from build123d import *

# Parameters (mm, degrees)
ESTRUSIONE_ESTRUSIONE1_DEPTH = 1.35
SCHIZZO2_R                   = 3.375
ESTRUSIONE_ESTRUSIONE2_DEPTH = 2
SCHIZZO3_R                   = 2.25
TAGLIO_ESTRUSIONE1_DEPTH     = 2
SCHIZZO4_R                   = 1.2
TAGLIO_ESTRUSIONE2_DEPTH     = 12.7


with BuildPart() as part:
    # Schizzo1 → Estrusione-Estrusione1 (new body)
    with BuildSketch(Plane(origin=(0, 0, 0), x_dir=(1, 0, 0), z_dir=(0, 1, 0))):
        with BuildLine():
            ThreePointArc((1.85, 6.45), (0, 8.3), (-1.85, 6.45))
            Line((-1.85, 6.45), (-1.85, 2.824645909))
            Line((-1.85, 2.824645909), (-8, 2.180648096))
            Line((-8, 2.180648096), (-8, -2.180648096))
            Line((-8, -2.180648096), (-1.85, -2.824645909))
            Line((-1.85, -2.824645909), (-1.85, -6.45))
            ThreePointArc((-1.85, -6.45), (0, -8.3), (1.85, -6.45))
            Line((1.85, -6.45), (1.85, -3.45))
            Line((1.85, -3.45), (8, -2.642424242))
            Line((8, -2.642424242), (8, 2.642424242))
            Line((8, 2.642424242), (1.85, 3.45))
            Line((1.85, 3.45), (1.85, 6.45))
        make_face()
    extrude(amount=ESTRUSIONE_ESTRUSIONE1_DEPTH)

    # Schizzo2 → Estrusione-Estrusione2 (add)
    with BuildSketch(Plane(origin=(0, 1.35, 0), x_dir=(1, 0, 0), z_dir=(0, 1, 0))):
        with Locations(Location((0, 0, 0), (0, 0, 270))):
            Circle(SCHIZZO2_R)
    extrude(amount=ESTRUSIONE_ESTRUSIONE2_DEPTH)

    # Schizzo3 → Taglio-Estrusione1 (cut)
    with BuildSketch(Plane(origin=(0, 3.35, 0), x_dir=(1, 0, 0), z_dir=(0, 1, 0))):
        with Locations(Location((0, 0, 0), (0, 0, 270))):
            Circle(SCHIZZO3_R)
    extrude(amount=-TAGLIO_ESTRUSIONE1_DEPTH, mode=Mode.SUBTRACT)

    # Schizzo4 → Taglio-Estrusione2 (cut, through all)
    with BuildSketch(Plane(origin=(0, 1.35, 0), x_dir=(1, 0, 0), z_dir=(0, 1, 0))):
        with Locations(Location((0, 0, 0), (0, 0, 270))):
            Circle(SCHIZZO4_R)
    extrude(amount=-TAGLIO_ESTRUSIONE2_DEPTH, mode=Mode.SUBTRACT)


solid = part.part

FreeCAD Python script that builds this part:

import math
import FreeCAD as App
import Part
import Sketcher
from FreeCAD import Vector
Q = App.Units.Quantity

doc = App.newDocument("Part")
body = doc.addObject("PartDesign::Body", "Body")

sketch1 = doc.addObject("Sketcher::SketchObject", "Sketch")
body.addObject(sketch1)
sketch1.AttachmentSupport = (doc.XZ_Plane, [""])
sketch1.MapMode = "FlatFace"
sketch1.addGeometry([
    Part.ArcOfCircle(Part.Circle(Vector(0, -6.5, 0), Vector(0, 0, 1), 1.9), math.radians(180), math.radians(360)),
    Part.LineSegment(Vector(-1.9, -6.5, 0), Vector(-1.9, -2.8, 0)),
    Part.LineSegment(Vector(-1.9, -2.8, 0), Vector(-8, -2.2, 0)),
    Part.LineSegment(Vector(-8, -2.2, 0), Vector(-8, 2.2, 0)),
    Part.LineSegment(Vector(-8, 2.2, 0), Vector(-1.9, 2.8, 0)),
    Part.LineSegment(Vector(-1.9, 2.8, 0), Vector(-1.9, 6.5, 0)),
    Part.ArcOfCircle(Part.Circle(Vector(0, 6.5, 0), Vector(0, 0, 1), 1.9), math.radians(0), math.radians(180)),
    Part.LineSegment(Vector(1.9, 6.5, 0), Vector(1.9, 3.5, 0)),
    Part.LineSegment(Vector(1.9, 3.5, 0), Vector(8, 2.6, 0)),
    Part.LineSegment(Vector(8, 2.6, 0), Vector(8, -2.6, 0)),
    Part.LineSegment(Vector(8, -2.6, 0), Vector(1.9, -3.5, 0)),
    Part.LineSegment(Vector(1.9, -3.5, 0), Vector(1.9, -6.5, 0)),
], False)
sketch1.addConstraint([
    Sketcher.Constraint("Tangent", 0, 1, 1, 1),
    Sketcher.Constraint("Coincident", 1, 2, 2, 1),
    Sketcher.Constraint("Coincident", 2, 2, 3, 1),
    Sketcher.Constraint("Coincident", 3, 2, 4, 1),
    Sketcher.Constraint("Coincident", 4, 2, 5, 1),
    Sketcher.Constraint("Tangent", 5, 2, 6, 2),
    Sketcher.Constraint("Tangent", 6, 1, 7, 1),
    Sketcher.Constraint("Coincident", 7, 2, 8, 1),
    Sketcher.Constraint("Coincident", 8, 2, 9, 1),
    Sketcher.Constraint("Coincident", 9, 2, 10, 1),
    Sketcher.Constraint("Coincident", 10, 2, 11, 1),
    Sketcher.Constraint("Tangent", 11, 2, 0, 2),
    Sketcher.Constraint("Vertical", 1),
    Sketcher.Constraint("Vertical", 3),
    Sketcher.Constraint("Vertical", 5),
    Sketcher.Constraint("Vertical", 7),
    Sketcher.Constraint("Vertical", 9),
    Sketcher.Constraint("Vertical", 11),
    Sketcher.Constraint("Equal", 0, 6),
    Sketcher.Constraint("Symmetric", 0, 3, 6, 3, -1, 1),
    Sketcher.Constraint("Symmetric", 1, 2, 4, 2, -1),
    Sketcher.Constraint("Equal", 7, 11),
    Sketcher.Constraint("Equal", 2, 4),
    Sketcher.Constraint("Equal", 8, 10),
    Sketcher.Constraint("DistanceY", 7, 2, 7, 1, Q("3 mm")),
    Sketcher.Constraint("Radius", 0, Q("1.85 mm")),
    Sketcher.Constraint("DistanceX", 2, 2, -1, 1, Q("8 mm")),
    Sketcher.Constraint("DistanceX", -1, 1, 8, 2, Q("8 mm")),
    Sketcher.Constraint("DistanceY", 0, 3, 6, 3, Q("12.9 mm")),
    Sketcher.Constraint("DistanceY", 9, 2, 9, 1, Q("5.284848 mm")),
    Sketcher.Constraint("DistanceY", 1, 1, 1, 2, Q("3.625354 mm")),
    Sketcher.Constraint("DistanceY", 3, 1, 3, 2, Q("4.361296 mm")),
])
pad1 = doc.addObject("PartDesign::Pad", "Pad")
body.addObject(pad1)
pad1.Profile = sketch1
pad1.Length = 1.35
pad1.Reversed = True

sketch2 = doc.addObject("Sketcher::SketchObject", "Sketch001")
body.addObject(sketch2)
sketch2.AttachmentSupport = (doc.XZ_Plane, [""])
sketch2.MapMode = "FlatFace"
sketch2.AttachmentOffset = App.Placement(Vector(0, 0, -1.35), App.Rotation())
sketch2.addGeometry(Part.Circle(Vector(0, 0, 0), Vector(0, 0, 1), 3.4), False)
sketch2.addConstraint([
    Sketcher.Constraint("Coincident", 0, 3, -1, 1),
    Sketcher.Constraint("Diameter", 0, Q("6.75 mm")),
])
pad2 = doc.addObject("PartDesign::Pad", "Pad001")
body.addObject(pad2)
pad2.Profile = sketch2
pad2.Length = 2
pad2.Reversed = True

sketch3 = doc.addObject("Sketcher::SketchObject", "Sketch002")
body.addObject(sketch3)
sketch3.AttachmentSupport = (doc.XZ_Plane, [""])
sketch3.MapMode = "FlatFace"
sketch3.AttachmentOffset = App.Placement(Vector(0, 0, -3.35), App.Rotation())
sketch3.addGeometry(Part.Circle(Vector(0, 0, 0), Vector(0, 0, 1), 2.2), False)
sketch3.addConstraint([
    Sketcher.Constraint("Coincident", 0, 3, -1, 1),
    Sketcher.Constraint("Diameter", 0, Q("4.5 mm")),
])
pocket1 = doc.addObject("PartDesign::Pocket", "Pocket")
body.addObject(pocket1)
pocket1.Profile = sketch3
pocket1.Length = 2
pocket1.Reversed = True

sketch4 = doc.addObject("Sketcher::SketchObject", "Sketch003")
body.addObject(sketch4)
sketch4.AttachmentSupport = (doc.XZ_Plane, [""])
sketch4.MapMode = "FlatFace"
sketch4.AttachmentOffset = App.Placement(Vector(0, 0, -1.35), App.Rotation())
sketch4.addGeometry(Part.Circle(Vector(0, 0, 0), Vector(0, 0, 1), 1.2), False)
sketch4.addConstraint([
    Sketcher.Constraint("Coincident", 0, 3, -1, 1),
    Sketcher.Constraint("Diameter", 0, Q("2.4 mm")),
])
pocket2 = doc.addObject("PartDesign::Pocket", "Pocket001")
body.addObject(pocket2)
pocket2.Profile = sketch4
pocket2.Type = "ThroughAll"
pocket2.Reversed = True

doc.recompute()
